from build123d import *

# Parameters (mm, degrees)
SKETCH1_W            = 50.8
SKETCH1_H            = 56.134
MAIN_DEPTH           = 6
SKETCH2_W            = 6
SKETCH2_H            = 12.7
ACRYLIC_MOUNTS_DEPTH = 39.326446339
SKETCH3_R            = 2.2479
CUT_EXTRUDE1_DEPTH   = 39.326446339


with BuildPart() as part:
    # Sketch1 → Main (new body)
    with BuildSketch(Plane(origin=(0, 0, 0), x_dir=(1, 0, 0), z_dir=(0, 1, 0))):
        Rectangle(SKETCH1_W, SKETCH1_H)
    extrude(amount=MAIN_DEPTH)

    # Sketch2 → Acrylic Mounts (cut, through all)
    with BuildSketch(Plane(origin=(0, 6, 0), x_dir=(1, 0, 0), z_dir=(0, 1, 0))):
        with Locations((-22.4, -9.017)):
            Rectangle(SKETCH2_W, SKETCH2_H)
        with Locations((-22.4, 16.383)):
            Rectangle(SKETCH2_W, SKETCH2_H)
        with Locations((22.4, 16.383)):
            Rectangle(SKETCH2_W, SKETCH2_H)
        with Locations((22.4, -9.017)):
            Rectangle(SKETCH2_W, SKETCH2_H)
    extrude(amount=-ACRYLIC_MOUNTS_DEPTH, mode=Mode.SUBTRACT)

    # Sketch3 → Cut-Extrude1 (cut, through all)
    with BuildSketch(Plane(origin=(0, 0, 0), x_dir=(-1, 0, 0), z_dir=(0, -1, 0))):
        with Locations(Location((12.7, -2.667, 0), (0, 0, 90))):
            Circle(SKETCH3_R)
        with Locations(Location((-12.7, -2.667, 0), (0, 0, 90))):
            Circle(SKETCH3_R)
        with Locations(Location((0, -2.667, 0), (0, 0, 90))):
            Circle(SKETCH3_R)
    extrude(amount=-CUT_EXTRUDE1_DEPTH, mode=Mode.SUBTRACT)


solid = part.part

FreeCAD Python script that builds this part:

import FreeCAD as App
import Part
import Sketcher
from FreeCAD import Vector
Q = App.Units.Quantity


def add_polygon(sketch, points):
    """Adds a closed chain of lines whose ends are joined by coincident constraints."""
    first, n = sketch.GeometryCount, len(points)
    for a, b in zip(points, points[1:] + points[:1]):
        sketch.addGeometry(Part.LineSegment(App.Vector(*a, 0), App.Vector(*b, 0)), False)
    for i in range(n):
        sketch.addConstraint(Sketcher.Constraint("Coincident", first + i, 2, first + (i + 1) % n, 1))

doc = App.newDocument("Part")
body = doc.addObject("PartDesign::Body", "Body")

# Sketch on XZ plane
sketch1 = body.newObject("Sketcher::SketchObject", "Sketch")
sketch1.AttachmentSupport = (doc.getObject("XZ_Plane"), [""])
sketch1.MapMode = "FlatFace"
add_polygon(sketch1, [(-25, -28), (-25, 28), (25, 28), (25, -28)])  # lines 0-3
sketch1.addConstraint([
    Sketcher.Constraint("Vertical", 0),
    Sketcher.Constraint("Horizontal", 1),
    Sketcher.Constraint("Vertical", 2),
    Sketcher.Constraint("Horizontal", 3),
    Sketcher.Constraint("Symmetric", 0, 2, 2, 2, -1, 1),
    Sketcher.Constraint("DistanceX", 1, 1, 1, 2, Q("2 in")),
    Sketcher.Constraint("DistanceY", 0, 1, 0, 2, Q("2.21 in")),
])
pad1 = body.newObject("PartDesign::Pad", "Pad")
pad1.Profile = sketch1
pad1.Length = 6
pad1.Reversed = True

# Sketch on XZ plane
sketch2 = body.newObject("Sketcher::SketchObject", "Sketch001")
sketch2.AttachmentSupport = (doc.getObject("XZ_Plane"), [""])
sketch2.MapMode = "FlatFace"
sketch2.AttachmentOffset = App.Placement(Vector(0, 0, -6), App.Rotation())
add_polygon(sketch2, [(-25, 3), (-25, 15), (-19, 15), (-19, 3)])  # lines 0-3
add_polygon(sketch2, [(-25, -23), (-25, -10), (-19, -10), (-19, -23)])  # lines 4-7
add_polygon(sketch2, [(19, -23), (19, -10), (25, -10), (25, -23)])  # lines 8-11
add_polygon(sketch2, [(19, 3), (19, 15), (25, 15), (25, 3)])  # lines 12-15
sketch2.addConstraint([
    Sketcher.Constraint("Vertical", 0),
    Sketcher.Constraint("Horizontal", 1),
    Sketcher.Constraint("Vertical", 2),
    Sketcher.Constraint("Horizontal", 3),
    Sketcher.Constraint("Vertical", 4),
    Sketcher.Constraint("Horizontal", 5),
    Sketcher.Constraint("Vertical", 6),
    Sketcher.Constraint("Horizontal", 7),
    Sketcher.Constraint("Vertical", 8),
    Sketcher.Constraint("Horizontal", 9),
    Sketcher.Constraint("Vertical", 10),
    Sketcher.Constraint("Horizontal", 11),
    Sketcher.Constraint("Vertical", 12),
    Sketcher.Constraint("Horizontal", 13),
    Sketcher.Constraint("Vertical", 14),
    Sketcher.Constraint("Horizontal", 15),
    Sketcher.Constraint("Symmetric", 5, 2, 8, 2, -2),
    Sketcher.Constraint("Symmetric", 7, 2, 10, 2, -2),
    Sketcher.Constraint("Symmetric", 1, 2, 12, 2, -2),
    Sketcher.Constraint("Symmetric", 3, 2, 14, 2, -2),
    Sketcher.Constraint("Vertical", 3, 2, 4, 2),
    Sketcher.Constraint("Vertical", 2, 2, 5, 2),
    Sketcher.Constraint("Equal", 2, 4),
    Sketcher.Constraint("DistanceY", 0, 1, 0, 2, Q("0.5 in")),
    Sketcher.Constraint("DistanceX", 0, 2, -1, 1, Q("1 in")),
    Sketcher.Constraint("DistanceY", 4, 2, 0, 2, Q("1 in")),
    Sketcher.Constraint("DistanceY", -1, 1, 0, 2, Q("0.605 in")),
    Sketcher.Constraint("DistanceX", 1, 1, 1, 2, Q("6 mm")),
])
pocket1 = body.newObject("PartDesign::Pocket", "Pocket")
pocket1.Profile = sketch2
pocket1.Type = "ThroughAll"
pocket1.Reversed = True

# Sketch on XZ plane
sketch3 = body.newObject("Sketcher::SketchObject", "Sketch002")
sketch3.AttachmentSupport = (doc.getObject("XZ_Plane"), [""])
sketch3.MapMode = "FlatFace"
sketch3.addGeometry([
    Part.Circle(Vector(-12.7, 2.7, 0), Vector(0, 0, 1), 2.2),
    Part.Circle(Vector(12.7, 2.7, 0), Vector(0, 0, 1), 2.2),
    Part.Circle(Vector(0, 2.7, 0), Vector(0, 0, 1), 2.2),
], False)
sketch3.addConstraint([
    Sketcher.Constraint("Equal", 0, 1),
    Sketcher.Constraint("Equal", 1, 2),
    Sketcher.Constraint("Symmetric", 0, 3, 1, 3, -2),
    Sketcher.Constraint("PointOnObject", 2, 3, -2),
    Sketcher.Constraint("Horizontal", 1, 3, 2, 3),
    Sketcher.Constraint("Diameter", 0, Q("0.177 in")),
    Sketcher.Constraint("DistanceX", 0, 3, 1, 3, Q("1 in")),
    Sketcher.Constraint("DistanceY", -1, 1, 0, 3, Q("0.105 in")),
])
pocket2 = body.newObject("PartDesign::Pocket", "Pocket001")
pocket2.Profile = sketch3
pocket2.Type = "ThroughAll"

doc.recompute()
